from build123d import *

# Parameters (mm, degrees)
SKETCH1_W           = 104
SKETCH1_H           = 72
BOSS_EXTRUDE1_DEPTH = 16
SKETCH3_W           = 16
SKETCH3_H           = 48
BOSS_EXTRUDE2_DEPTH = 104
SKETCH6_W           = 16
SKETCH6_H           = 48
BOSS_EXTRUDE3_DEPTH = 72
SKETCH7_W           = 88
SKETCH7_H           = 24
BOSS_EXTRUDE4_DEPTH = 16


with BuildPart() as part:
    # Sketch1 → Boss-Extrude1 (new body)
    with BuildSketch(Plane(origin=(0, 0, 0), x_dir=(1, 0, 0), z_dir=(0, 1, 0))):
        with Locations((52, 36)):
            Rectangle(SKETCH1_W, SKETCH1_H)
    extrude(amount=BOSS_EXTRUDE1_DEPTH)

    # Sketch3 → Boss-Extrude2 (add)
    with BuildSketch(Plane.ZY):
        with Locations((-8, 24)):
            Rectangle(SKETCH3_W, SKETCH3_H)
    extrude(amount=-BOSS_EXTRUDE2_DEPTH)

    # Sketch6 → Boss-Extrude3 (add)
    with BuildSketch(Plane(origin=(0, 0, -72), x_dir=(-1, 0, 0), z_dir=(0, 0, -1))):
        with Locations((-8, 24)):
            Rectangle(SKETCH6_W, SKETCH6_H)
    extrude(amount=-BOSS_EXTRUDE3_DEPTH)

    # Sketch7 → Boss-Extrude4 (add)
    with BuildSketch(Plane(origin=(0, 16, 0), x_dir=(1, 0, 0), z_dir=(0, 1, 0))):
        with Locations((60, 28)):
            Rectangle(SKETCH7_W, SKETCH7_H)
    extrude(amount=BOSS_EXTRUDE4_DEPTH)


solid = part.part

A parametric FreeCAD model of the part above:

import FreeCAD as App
import Part
import Sketcher
Q = App.Units.Quantity


def add_polygon(sketch, points):
    """Adds a closed chain of lines whose ends are joined by coincident constraints."""
    first, n = sketch.GeometryCount, len(points)
    for a, b in zip(points, points[1:] + points[:1]):
        sketch.addGeometry(Part.LineSegment(App.Vector(*a, 0), App.Vector(*b, 0)), False)
    for i in range(n):
        sketch.addConstraint(Sketcher.Constraint("Coincident", first + i, 2, first + (i + 1) % n, 1))

doc = App.newDocument("Part")
body = doc.addObject("PartDesign::Body", "Body")

sketch1 = body.newObject("Sketcher::SketchObject", "Sketch")
sketch1.AttachmentSupport = (doc.getObject("XZ_Plane"), [""])
sketch1.MapMode = "FlatFace"
add_polygon(sketch1, [(0, -72), (0, 0), (104, 0), (104, -72)])
sketch1.addConstraint([
    Sketcher.Constraint("Vertical", 0),
    Sketcher.Constraint("Horizontal", 1),
    Sketcher.Constraint("Vertical", 2),
    Sketcher.Constraint("Horizontal", 3),
    Sketcher.Constraint("Coincident", 0, 2, -1, 1),
    Sketcher.Constraint("DistanceX", 1, 1, 1, 2, Q("104 mm")),
    Sketcher.Constraint("DistanceY", 0, 1, 0, 2, Q("72 mm")),
])
pad1 = body.newObject("PartDesign::Pad", "Pad")
pad1.Profile = sketch1
pad1.Length = 16
pad1.Reversed = True

sketch2 = body.newObject("Sketcher::SketchObject", "Sketch001")
sketch2.AttachmentSupport = (doc.getObject("YZ_Plane"), [""])
sketch2.MapMode = "FlatFace"
add_polygon(sketch2, [(48, -16), (0, -16), (0, 0), (48, 0)])
sketch2.addConstraint([
    Sketcher.Constraint("Horizontal", 0),
    Sketcher.Constraint("Vertical", 1),
    Sketcher.Constraint("Horizontal", 2),
    Sketcher.Constraint("Vertical", 3),
    Sketcher.Constraint("Coincident", 1, 2, -1, 1),
    Sketcher.Constraint("DistanceX", 0, 2, 0, 1, Q("48 mm")),
    Sketcher.Constraint("DistanceY", 1, 1, 1, 2, Q("16 mm")),
])
pad2 = body.newObject("PartDesign::Pad", "Pad001")
pad2.Profile = sketch2
pad2.Length = 104

sketch3 = body.newObject("Sketcher::SketchObject", "Sketch002")
sketch3.AttachmentSupport = (doc.getObject("XY_Plane"), [""])
sketch3.MapMode = "FlatFace"
sketch3.AttachmentOffset = App.Placement(App.Vector(0, 0, -72), App.Rotation())
add_polygon(sketch3, [(16, 48), (16, 0), (0, 0), (0, 48)])
sketch3.addConstraint([
    Sketcher.Constraint("Vertical", 0),
    Sketcher.Constraint("Horizontal", 1),
    Sketcher.Constraint("Vertical", 2),
    Sketcher.Constraint("Horizontal", 3),
    Sketcher.Constraint("Coincident", 1, 2, -1, 1),
    Sketcher.Constraint("DistanceX", 1, 2, 1, 1, Q("16 mm")),
    Sketcher.Constraint("DistanceY", 0, 2, 0, 1, Q("48 mm")),
])
pad3 = body.newObject("PartDesign::Pad", "Pad002")
pad3.Profile = sketch3
pad3.Length = 72

sketch4 = body.newObject("Sketcher::SketchObject", "Sketch003")
sketch4.AttachmentSupport = (doc.getObject("XZ_Plane"), [""])
sketch4.MapMode = "FlatFace"
sketch4.AttachmentOffset = App.Placement(App.Vector(0, 0, -16), App.Rotation())
add_polygon(sketch4, [(16, -40), (16, -16), (104, -16), (104, -40)])
sketch4.addConstraint([
    Sketcher.Constraint("Vertical", 0),
    Sketcher.Constraint("Horizontal", 1),
    Sketcher.Constraint("Vertical", 2),
    Sketcher.Constraint("Horizontal", 3),
    Sketcher.Constraint("DistanceX", 1, 1, 1, 2, Q("88 mm")),
    Sketcher.Constraint("DistanceY", 0, 1, 0, 2, Q("24 mm")),
    Sketcher.Constraint("DistanceX", -1, 1, 0, 2, Q("16 mm")),
    Sketcher.Constraint("DistanceY", 0, 2, -1, 1, Q("16 mm")),
])
pad4 = body.newObject("PartDesign::Pad", "Pad003")
pad4.Profile = sketch4
pad4.Length = 16
pad4.Reversed = True

doc.recompute()
